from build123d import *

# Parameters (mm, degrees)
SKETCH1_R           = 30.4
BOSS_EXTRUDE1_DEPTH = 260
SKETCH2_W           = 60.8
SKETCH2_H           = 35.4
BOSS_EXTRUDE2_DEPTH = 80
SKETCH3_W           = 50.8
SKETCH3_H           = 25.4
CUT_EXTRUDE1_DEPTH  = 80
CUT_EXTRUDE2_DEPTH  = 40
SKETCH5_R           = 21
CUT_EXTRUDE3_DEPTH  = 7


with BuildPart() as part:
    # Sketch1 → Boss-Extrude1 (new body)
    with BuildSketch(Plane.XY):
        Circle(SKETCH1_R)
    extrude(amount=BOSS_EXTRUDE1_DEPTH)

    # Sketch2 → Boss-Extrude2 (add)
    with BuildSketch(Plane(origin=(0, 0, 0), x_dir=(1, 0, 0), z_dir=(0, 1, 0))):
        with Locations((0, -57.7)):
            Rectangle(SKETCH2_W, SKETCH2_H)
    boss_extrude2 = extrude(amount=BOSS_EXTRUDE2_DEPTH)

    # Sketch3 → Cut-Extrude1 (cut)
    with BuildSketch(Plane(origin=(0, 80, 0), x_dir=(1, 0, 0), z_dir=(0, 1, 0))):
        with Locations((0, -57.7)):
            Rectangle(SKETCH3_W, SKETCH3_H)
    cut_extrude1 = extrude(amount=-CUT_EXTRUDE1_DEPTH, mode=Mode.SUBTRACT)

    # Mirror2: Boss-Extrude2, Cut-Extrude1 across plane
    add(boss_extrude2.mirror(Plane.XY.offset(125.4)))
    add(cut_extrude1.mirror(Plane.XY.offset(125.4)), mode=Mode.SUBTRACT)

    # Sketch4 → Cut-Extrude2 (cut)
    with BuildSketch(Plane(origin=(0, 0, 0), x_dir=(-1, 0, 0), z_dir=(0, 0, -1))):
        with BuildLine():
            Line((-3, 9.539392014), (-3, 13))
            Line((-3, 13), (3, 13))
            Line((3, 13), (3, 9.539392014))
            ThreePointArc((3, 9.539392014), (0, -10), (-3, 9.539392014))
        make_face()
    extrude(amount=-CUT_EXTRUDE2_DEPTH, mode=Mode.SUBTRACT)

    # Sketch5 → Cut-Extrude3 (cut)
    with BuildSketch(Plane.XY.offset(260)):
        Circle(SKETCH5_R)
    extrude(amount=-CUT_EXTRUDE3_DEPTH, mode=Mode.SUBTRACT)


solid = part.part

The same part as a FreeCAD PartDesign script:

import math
import FreeCAD as App
import Part
import Sketcher
from FreeCAD import Vector

doc = App.newDocument("Part")
body = doc.addObject("PartDesign::Body", "Body")

sketch1 = body.newObject("Sketcher::SketchObject", "Sketch")
sketch1.AttachmentSupport = (doc.getObject("XY_Plane"), [""])
sketch1.MapMode = "FlatFace"
sketch1.addGeometry(Part.Circle(Vector(0, 0, 0), Vector(0, 0, 1), 30), False)
sketch1.addConstraint(Sketcher.Constraint("Coincident", 0, 3, -1, 1))
sketch1.addConstraint(Sketcher.Constraint("Diameter", 0, 60.8))
pad1 = body.newObject("PartDesign::Pad", "Pad")
pad1.Profile = sketch1
pad1.Length = 260

sketch2 = body.newObject("Sketcher::SketchObject", "Sketch001")
sketch2.AttachmentSupport = (doc.getObject("XZ_Plane"), [""])
sketch2.MapMode = "FlatFace"
sketch2.addGeometry(Part.LineSegment(Vector(-30, 40, 0), Vector(-30, 75, 0)), False)
sketch2.addGeometry(Part.LineSegment(Vector(-30, 75, 0), Vector(30, 75, 0)), False)
sketch2.addGeometry(Part.LineSegment(Vector(30, 75, 0), Vector(30, 40, 0)), False)
sketch2.addGeometry(Part.LineSegment(Vector(30, 40, 0), Vector(-30, 40, 0)), False)
sketch2.addConstraint(Sketcher.Constraint("Coincident", 0, 2, 1, 1))
sketch2.addConstraint(Sketcher.Constraint("Coincident", 1, 2, 2, 1))
sketch2.addConstraint(Sketcher.Constraint("Coincident", 2, 2, 3, 1))
sketch2.addConstraint(Sketcher.Constraint("Coincident", 3, 2, 0, 1))
sketch2.addConstraint(Sketcher.Constraint("Vertical", 0))
sketch2.addConstraint(Sketcher.Constraint("Horizontal", 1))
sketch2.addConstraint(Sketcher.Constraint("Vertical", 2))
sketch2.addConstraint(Sketcher.Constraint("Horizontal", 3))
sketch2.addConstraint(Sketcher.Constraint("DistanceX", 1, 1, 1, 2, 60.8))
sketch2.addConstraint(Sketcher.Constraint("DistanceY", 0, 1, 0, 2, 35.4))
sketch2.addConstraint(Sketcher.Constraint("DistanceY", -1, 1, 2, 2, 40.0))
sketch2.addConstraint(Sketcher.Constraint("DistanceX", 0, 2, -1, 1, 30.4))
pad2 = body.newObject("PartDesign::Pad", "Pad001")
pad2.Profile = sketch2
pad2.Length = 80
pad2.Reversed = True

sketch3 = body.newObject("Sketcher::SketchObject", "Sketch002")
sketch3.AttachmentSupport = (doc.getObject("XZ_Plane"), [""])
sketch3.MapMode = "FlatFace"
sketch3.AttachmentOffset = App.Placement(Vector(0, 0, -80), App.Rotation())
sketch3.addGeometry(Part.LineSegment(Vector(-25, 45, 0), Vector(-25, 70, 0)), False)
sketch3.addGeometry(Part.LineSegment(Vector(-25, 70, 0), Vector(25, 70, 0)), False)
sketch3.addGeometry(Part.LineSegment(Vector(25, 70, 0), Vector(25, 45, 0)), False)
sketch3.addGeometry(Part.LineSegment(Vector(25, 45, 0), Vector(-25, 45, 0)), False)
sketch3.addConstraint(Sketcher.Constraint("Coincident", 0, 2, 1, 1))
sketch3.addConstraint(Sketcher.Constraint("Coincident", 1, 2, 2, 1))
sketch3.addConstraint(Sketcher.Constraint("Coincident", 2, 2, 3, 1))
sketch3.addConstraint(Sketcher.Constraint("Coincident", 3, 2, 0, 1))
sketch3.addConstraint(Sketcher.Constraint("Vertical", 0))
sketch3.addConstraint(Sketcher.Constraint("Horizontal", 1))
sketch3.addConstraint(Sketcher.Constraint("Vertical", 2))
sketch3.addConstraint(Sketcher.Constraint("Horizontal", 3))
sketch3.addConstraint(Sketcher.Constraint("DistanceX", 1, 1, 1, 2, 50.8))
sketch3.addConstraint(Sketcher.Constraint("DistanceY", 0, 1, 0, 2, 25.4))
sketch3.addConstraint(Sketcher.Constraint("DistanceY", -1, 1, 2, 2, 45.0))
sketch3.addConstraint(Sketcher.Constraint("DistanceX", 0, 2, -1, 1, 25.4))
pocket1 = body.newObject("PartDesign::Pocket", "Pocket")
pocket1.Profile = sketch3
pocket1.Length = 80
pocket1.Reversed = True
doc.recompute()

datumplane = body.newObject("PartDesign::Plane", "DatumPlane")
datumplane.AttachmentSupport = (doc.getObject("XY_Plane"), [""])
datumplane.MapMode = "FlatFace"
datumplane.AttachmentOffset = App.Placement(Vector(0, 0, 125.4), App.Rotation())
mirrored = body.newObject("PartDesign::Mirrored", "Mirrored")
mirrored.Originals = [pad2, pocket1]
mirrored.MirrorPlane = (datumplane, [""])
body.Tip = mirrored

sketch4 = body.newObject("Sketcher::SketchObject", "Sketch003")
sketch4.AttachmentSupport = (doc.getObject("XY_Plane"), [""])
sketch4.MapMode = "FlatFace"
sketch4.addGeometry(Part.LineSegment(Vector(3, 13, 0), Vector(3, 9.5, 0)), False)
sketch4.addGeometry(Part.ArcOfCircle(Part.Circle(Vector(0, 0, 0), Vector(0, 0, 1), 10), math.radians(107), math.radians(433)), False)
sketch4.addGeometry(Part.LineSegment(Vector(-3, 9.5, 0), Vector(-3, 13, 0)), False)
sketch4.addGeometry(Part.LineSegment(Vector(-3, 13, 0), Vector(3, 13, 0)), False)
sketch4.addConstraint(Sketcher.Constraint("Coincident", 0, 2, 1, 2))
sketch4.addConstraint(Sketcher.Constraint("Coincident", 1, 1, 2, 1))
sketch4.addConstraint(Sketcher.Constraint("Coincident", 2, 2, 3, 1))
sketch4.addConstraint(Sketcher.Constraint("Coincident", 3, 2, 0, 1))
sketch4.addConstraint(Sketcher.Constraint("Vertical", 0))
sketch4.addConstraint(Sketcher.Constraint("Vertical", 2))
sketch4.addConstraint(Sketcher.Constraint("Horizontal", 3))
sketch4.addConstraint(Sketcher.Constraint("Coincident", 1, 3, -1, 1))
sketch4.addConstraint(Sketcher.Constraint("Horizontal", 0, 2, 1, 1))
sketch4.addConstraint(Sketcher.Constraint("Radius", 1, 10.0))
sketch4.addConstraint(Sketcher.Constraint("DistanceX", 3, 1, 3, 2, 6.0))
sketch4.addConstraint(Sketcher.Constraint("DistanceY", -1, 1, 2, 2, 13.0))
pocket2 = body.newObject("PartDesign::Pocket", "Pocket001")
pocket2.Profile = sketch4
pocket2.Length = 40
pocket2.Reversed = True

sketch5 = body.newObject("Sketcher::SketchObject", "Sketch004")
sketch5.AttachmentSupport = (doc.getObject("XY_Plane"), [""])
sketch5.MapMode = "FlatFace"
sketch5.AttachmentOffset = App.Placement(Vector(0, 0, 260), App.Rotation())
sketch5.addGeometry(Part.Circle(Vector(0, 0, 0), Vector(0, 0, 1), 21), False)
sketch5.addConstraint(Sketcher.Constraint("Coincident", 0, 3, -1, 1))
sketch5.addConstraint(Sketcher.Constraint("Diameter", 0, 42.0))
pocket3 = body.newObject("PartDesign::Pocket", "Pocket002")
pocket3.Profile = sketch5
pocket3.Length = 7

doc.recompute()
